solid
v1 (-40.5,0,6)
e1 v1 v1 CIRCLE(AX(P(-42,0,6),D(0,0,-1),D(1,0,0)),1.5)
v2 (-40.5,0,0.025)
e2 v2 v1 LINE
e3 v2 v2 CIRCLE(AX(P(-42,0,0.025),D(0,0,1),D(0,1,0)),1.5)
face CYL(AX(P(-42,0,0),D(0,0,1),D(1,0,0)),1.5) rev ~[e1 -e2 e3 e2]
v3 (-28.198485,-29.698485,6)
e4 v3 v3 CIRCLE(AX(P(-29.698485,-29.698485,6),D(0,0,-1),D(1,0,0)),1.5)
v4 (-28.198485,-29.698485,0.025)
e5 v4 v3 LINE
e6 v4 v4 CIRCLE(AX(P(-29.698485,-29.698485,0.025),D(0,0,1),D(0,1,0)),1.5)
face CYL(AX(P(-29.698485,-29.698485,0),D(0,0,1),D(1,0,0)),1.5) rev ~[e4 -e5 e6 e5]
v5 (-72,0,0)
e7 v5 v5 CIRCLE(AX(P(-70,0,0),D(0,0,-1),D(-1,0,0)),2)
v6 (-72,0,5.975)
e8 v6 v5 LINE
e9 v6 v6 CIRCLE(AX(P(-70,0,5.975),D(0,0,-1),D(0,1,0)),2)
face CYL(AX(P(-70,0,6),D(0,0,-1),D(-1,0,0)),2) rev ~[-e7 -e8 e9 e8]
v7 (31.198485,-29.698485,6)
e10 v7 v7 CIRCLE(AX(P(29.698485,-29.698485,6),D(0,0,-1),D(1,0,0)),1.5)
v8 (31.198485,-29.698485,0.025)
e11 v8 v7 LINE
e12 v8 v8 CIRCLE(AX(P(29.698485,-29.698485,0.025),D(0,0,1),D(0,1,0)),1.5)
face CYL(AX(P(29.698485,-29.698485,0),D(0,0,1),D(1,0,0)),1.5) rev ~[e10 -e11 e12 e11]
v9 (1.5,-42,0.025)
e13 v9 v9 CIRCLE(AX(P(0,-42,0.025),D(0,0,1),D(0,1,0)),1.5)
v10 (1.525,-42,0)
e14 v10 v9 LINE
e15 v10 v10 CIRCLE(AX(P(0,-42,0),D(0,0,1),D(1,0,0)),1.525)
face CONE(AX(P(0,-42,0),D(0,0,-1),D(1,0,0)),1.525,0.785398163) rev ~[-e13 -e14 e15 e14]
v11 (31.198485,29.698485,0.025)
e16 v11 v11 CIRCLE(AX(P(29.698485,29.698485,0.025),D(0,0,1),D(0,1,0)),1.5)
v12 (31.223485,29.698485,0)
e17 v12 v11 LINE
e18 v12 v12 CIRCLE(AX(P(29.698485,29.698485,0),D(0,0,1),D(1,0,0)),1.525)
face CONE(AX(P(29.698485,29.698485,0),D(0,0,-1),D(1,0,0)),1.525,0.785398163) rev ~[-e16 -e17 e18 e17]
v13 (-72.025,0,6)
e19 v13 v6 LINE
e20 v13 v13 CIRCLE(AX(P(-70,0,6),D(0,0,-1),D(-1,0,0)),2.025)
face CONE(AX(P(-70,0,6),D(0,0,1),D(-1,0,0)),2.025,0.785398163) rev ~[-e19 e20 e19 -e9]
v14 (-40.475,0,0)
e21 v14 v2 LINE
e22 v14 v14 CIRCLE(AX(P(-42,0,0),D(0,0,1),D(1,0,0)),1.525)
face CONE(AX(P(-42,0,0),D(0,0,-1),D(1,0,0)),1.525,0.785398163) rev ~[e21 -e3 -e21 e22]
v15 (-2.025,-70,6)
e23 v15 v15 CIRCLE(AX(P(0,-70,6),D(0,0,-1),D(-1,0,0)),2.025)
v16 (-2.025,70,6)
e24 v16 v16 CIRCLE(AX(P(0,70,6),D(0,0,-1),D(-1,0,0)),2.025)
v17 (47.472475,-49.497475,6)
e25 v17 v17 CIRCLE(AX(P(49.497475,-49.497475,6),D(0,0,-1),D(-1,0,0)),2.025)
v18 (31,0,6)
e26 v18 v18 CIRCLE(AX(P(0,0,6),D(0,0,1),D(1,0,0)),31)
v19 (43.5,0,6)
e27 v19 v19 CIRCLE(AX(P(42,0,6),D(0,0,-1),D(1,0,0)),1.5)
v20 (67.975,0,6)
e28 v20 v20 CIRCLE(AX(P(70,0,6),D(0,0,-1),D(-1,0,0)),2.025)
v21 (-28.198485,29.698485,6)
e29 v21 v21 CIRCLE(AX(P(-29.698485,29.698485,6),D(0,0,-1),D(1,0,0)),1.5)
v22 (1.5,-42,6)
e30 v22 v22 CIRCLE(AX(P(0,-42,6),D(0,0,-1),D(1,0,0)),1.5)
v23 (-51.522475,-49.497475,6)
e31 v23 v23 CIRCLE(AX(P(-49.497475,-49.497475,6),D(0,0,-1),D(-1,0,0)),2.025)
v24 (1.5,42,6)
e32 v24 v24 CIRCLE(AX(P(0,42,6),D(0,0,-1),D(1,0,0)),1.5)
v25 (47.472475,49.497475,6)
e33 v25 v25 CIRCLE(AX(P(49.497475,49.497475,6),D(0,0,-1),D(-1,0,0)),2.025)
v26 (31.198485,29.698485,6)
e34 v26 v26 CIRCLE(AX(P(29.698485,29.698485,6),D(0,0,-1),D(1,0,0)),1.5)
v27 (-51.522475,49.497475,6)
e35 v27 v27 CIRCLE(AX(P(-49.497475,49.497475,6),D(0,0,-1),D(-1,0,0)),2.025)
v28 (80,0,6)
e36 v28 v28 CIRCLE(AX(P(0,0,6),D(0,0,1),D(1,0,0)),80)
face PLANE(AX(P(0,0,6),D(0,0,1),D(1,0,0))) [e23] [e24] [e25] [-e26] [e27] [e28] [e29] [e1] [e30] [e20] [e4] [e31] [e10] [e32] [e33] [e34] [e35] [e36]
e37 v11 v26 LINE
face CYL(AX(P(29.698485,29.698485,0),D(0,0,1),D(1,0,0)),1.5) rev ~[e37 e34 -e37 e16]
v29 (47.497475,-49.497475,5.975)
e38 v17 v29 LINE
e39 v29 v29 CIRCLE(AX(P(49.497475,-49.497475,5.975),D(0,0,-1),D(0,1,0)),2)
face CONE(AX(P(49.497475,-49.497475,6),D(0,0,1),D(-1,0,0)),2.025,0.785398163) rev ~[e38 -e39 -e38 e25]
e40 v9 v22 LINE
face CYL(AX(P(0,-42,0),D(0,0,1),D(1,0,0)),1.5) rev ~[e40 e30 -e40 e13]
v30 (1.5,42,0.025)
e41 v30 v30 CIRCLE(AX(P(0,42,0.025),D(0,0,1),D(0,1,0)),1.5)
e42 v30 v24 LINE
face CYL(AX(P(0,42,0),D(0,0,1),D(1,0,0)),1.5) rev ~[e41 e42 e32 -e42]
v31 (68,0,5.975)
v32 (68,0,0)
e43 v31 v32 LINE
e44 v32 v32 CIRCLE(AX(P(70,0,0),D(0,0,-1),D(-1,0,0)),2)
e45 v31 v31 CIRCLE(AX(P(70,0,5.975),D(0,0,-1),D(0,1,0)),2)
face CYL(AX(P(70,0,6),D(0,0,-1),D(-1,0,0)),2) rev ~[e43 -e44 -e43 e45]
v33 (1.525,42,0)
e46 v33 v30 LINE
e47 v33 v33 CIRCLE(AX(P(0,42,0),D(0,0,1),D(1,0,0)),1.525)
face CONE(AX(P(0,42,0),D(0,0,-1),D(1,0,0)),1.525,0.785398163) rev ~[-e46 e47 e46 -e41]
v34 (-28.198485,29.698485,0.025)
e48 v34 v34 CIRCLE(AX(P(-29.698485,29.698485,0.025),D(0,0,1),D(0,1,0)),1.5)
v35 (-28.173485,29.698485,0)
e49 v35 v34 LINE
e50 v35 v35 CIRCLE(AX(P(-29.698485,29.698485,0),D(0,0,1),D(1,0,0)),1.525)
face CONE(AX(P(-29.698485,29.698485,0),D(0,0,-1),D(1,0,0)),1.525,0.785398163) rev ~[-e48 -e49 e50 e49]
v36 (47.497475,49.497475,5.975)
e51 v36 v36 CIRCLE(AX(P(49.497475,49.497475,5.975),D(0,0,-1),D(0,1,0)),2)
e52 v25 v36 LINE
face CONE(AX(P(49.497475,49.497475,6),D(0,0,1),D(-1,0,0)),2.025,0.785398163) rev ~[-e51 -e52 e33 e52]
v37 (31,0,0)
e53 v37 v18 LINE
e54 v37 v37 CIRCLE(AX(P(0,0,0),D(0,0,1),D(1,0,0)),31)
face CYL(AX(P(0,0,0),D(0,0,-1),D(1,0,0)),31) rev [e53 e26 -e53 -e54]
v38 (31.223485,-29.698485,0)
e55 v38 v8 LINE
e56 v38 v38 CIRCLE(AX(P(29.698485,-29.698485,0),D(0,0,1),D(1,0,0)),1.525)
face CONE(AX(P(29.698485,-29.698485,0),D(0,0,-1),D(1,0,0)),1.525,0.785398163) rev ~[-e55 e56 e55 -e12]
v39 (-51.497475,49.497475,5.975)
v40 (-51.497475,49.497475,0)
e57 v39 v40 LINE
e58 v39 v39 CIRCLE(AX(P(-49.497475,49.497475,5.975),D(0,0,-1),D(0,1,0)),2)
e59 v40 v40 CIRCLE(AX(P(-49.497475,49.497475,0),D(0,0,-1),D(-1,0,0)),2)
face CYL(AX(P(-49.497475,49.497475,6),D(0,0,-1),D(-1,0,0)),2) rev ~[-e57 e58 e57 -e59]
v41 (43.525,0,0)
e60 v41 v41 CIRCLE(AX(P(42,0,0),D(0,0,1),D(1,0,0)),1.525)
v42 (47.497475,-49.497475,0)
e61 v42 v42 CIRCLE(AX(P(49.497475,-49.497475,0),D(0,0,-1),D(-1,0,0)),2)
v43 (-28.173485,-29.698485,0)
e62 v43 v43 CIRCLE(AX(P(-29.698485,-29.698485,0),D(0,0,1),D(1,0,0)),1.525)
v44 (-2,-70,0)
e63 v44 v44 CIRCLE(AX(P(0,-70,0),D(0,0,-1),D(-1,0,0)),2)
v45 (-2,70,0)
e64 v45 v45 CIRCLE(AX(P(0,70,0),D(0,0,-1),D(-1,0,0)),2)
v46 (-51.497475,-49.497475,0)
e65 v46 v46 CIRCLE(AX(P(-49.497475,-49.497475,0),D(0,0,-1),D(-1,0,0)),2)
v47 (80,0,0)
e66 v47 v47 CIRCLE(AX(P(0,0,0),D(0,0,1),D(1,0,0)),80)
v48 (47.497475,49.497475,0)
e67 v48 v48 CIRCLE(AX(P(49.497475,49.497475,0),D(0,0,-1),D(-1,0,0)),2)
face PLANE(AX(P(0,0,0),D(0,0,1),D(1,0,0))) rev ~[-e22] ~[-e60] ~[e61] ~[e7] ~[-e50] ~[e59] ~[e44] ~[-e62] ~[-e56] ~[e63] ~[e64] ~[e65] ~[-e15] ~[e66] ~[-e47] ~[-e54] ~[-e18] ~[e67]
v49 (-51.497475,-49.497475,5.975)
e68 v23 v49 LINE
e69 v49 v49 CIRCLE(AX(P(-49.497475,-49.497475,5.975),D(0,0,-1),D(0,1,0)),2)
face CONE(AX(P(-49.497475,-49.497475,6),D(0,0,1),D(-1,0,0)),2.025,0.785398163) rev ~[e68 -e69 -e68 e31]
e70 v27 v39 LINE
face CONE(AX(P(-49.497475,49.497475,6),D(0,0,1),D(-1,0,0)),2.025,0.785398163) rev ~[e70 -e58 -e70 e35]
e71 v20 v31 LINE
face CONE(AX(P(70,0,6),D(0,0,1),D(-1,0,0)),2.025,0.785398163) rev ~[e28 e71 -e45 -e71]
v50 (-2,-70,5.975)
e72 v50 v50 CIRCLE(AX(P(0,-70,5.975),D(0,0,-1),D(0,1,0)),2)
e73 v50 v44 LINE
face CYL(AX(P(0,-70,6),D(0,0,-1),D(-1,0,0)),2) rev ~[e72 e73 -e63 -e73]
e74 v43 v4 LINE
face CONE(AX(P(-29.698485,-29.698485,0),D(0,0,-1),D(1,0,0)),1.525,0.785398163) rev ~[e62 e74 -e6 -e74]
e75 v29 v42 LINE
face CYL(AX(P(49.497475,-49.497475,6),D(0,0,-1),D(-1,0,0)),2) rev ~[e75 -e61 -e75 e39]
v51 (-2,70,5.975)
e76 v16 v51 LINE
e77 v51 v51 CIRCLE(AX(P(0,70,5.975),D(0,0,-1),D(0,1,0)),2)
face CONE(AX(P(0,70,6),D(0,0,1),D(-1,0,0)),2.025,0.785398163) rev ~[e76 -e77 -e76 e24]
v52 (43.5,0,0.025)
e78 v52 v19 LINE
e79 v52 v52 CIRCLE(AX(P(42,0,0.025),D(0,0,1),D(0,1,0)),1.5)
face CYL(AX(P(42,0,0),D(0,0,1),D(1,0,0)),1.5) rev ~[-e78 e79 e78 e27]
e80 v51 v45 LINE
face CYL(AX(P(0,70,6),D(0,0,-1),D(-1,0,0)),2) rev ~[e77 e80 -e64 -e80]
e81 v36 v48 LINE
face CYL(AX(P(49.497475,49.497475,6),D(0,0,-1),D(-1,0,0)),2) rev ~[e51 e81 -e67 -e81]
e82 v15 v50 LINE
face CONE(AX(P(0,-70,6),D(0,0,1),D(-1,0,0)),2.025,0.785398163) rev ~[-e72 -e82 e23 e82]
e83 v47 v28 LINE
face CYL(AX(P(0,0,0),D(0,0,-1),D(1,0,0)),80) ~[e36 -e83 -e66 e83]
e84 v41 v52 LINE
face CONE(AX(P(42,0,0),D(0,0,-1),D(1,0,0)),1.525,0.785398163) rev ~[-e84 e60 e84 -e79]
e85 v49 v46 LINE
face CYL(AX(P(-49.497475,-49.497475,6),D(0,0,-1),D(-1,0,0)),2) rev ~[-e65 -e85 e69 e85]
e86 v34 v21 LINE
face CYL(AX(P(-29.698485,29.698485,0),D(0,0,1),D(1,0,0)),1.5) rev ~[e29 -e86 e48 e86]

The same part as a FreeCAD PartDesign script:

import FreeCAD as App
import Part
import Sketcher
Q = App.Units.Quantity

doc = App.newDocument("Part")
body = doc.addObject("PartDesign::Body", "Body")

sketch1 = doc.addObject("Sketcher::SketchObject", "Sketch")
body.addObject(sketch1)
sketch1.AttachmentSupport = (doc.XY_Plane, [""])
sketch1.MapMode = "FlatFace"
sketch1.addGeometry(Part.Circle(App.Vector(0, 0, 0), App.Vector(0, 0, 1), 80), False)
sketch1.addGeometry(Part.Circle(App.Vector(0, 0, 0), App.Vector(0, 0, 1), 31), False)
sketch1.addConstraint(Sketcher.Constraint("Coincident", 0, 3, -1, 1))
sketch1.addConstraint(Sketcher.Constraint("Coincident", 1, 3, -1, 1))
sketch1.addConstraint(Sketcher.Constraint("Diameter", 0, Q("160 mm")))
sketch1.addConstraint(Sketcher.Constraint("Diameter", 1, Q("62 mm")))
pad1 = doc.addObject("PartDesign::Pad", "Pad")
body.addObject(pad1)
pad1.Profile = sketch1
pad1.Length = 6

sketch2 = doc.addObject("Sketcher::SketchObject", "Sketch001")
body.addObject(sketch2)
sketch2.AttachmentSupport = (doc.XY_Plane, [""])
sketch2.MapMode = "FlatFace"
sketch2.AttachmentOffset = App.Placement(App.Vector(0, 0, 6), App.Rotation())
sketch2.addGeometry(Part.Circle(App.Vector(0, 70, 0), App.Vector(0, 0, 1), 2), False)
sketch2.addGeometry(Part.Circle(App.Vector(-49.5, 49.5, 0), App.Vector(0, 0, 1), 2), False)
sketch2.addGeometry(Part.Circle(App.Vector(-70, 0, 0), App.Vector(0, 0, 1), 2), False)
sketch2.addGeometry(Part.Circle(App.Vector(-49.5, -49.5, 0), App.Vector(0, 0, 1), 2), False)
sketch2.addGeometry(Part.Circle(App.Vector(0, -70, 0), App.Vector(0, 0, 1), 2), False)
sketch2.addGeometry(Part.Circle(App.Vector(49.5, -49.5, 0), App.Vector(0, 0, 1), 2), False)
sketch2.addGeometry(Part.Circle(App.Vector(70, 0, 0), App.Vector(0, 0, 1), 2), False)
sketch2.addGeometry(Part.Circle(App.Vector(49.5, 49.5, 0), App.Vector(0, 0, 1), 2), False)
sketch2.addConstraint(Sketcher.Constraint("Equal", 0, 1))
sketch2.addConstraint(Sketcher.Constraint("Equal", 1, 2))
sketch2.addConstraint(Sketcher.Constraint("Equal", 2, 3))
sketch2.addConstraint(Sketcher.Constraint("Equal", 3, 4))
sketch2.addConstraint(Sketcher.Constraint("Equal", 4, 5))
sketch2.addConstraint(Sketcher.Constraint("Equal", 5, 6))
sketch2.addConstraint(Sketcher.Constraint("Equal", 6, 7))
sketch2.addConstraint(Sketcher.Constraint("Symmetric", 0, 3, 4, 3, -1, 1))
sketch2.addConstraint(Sketcher.Constraint("Symmetric", 1, 3, 5, 3, -1, 1))
sketch2.addConstraint(Sketcher.Constraint("Symmetric", 2, 3, 6, 3, -1, 1))
sketch2.addConstraint(Sketcher.Constraint("Symmetric", 3, 3, 7, 3, -1, 1))
sketch2.addConstraint(Sketcher.Constraint("Symmetric", 3, 3, 5, 3, -2))
sketch2.addConstraint(Sketcher.Constraint("PointOnObject", 0, 3, -2))
sketch2.addConstraint(Sketcher.Constraint("PointOnObject", 2, 3, -1))
sketch2.addConstraint(Sketcher.Constraint("Diameter", 0, Q("4 mm")))
sketch2.addConstraint(Sketcher.Constraint("DistanceY", -1, 1, 0, 3, Q("70 mm")))
sketch2.addConstraint(Sketcher.Constraint("DistanceX", 2, 3, -1, 1, Q("70 mm")))
sketch2.addConstraint(Sketcher.Constraint("DistanceY", 3, 3, 1, 3, Q("98.994949 mm")))
sketch2.addConstraint(Sketcher.Constraint("DistanceX", 3, 3, 5, 3, Q("98.994949 mm")))
doc.recompute()
hole = doc.addObject("PartDesign::Hole", "Hole")
body.addObject(hole)
hole.Profile = sketch2
hole.ThreadType = "None"
hole.Diameter = 4
hole.DepthType = "ThroughAll"
hole.HoleCutType = "Countersink"
hole.HoleCutDiameter = 4.05
hole.HoleCutCountersinkAngle = 90

sketch3 = doc.addObject("Sketcher::SketchObject", "Sketch002")
body.addObject(sketch3)
sketch3.AttachmentSupport = (doc.XY_Plane, [""])
sketch3.MapMode = "FlatFace"
sketch3.addGeometry(Part.Circle(App.Vector(29.7, -29.7, 0), App.Vector(0, 0, 1), 1.5), False)
sketch3.addGeometry(Part.Circle(App.Vector(42, 0, 0), App.Vector(0, 0, 1), 1.5), False)
sketch3.addGeometry(Part.Circle(App.Vector(29.7, 29.7, 0), App.Vector(0, 0, 1), 1.5), False)
sketch3.addGeometry(Part.Circle(App.Vector(0, 42, 0), App.Vector(0, 0, 1), 1.5), False)
sketch3.addGeometry(Part.Circle(App.Vector(-29.7, 29.7, 0), App.Vector(0, 0, 1), 1.5), False)
sketch3.addGeometry(Part.Circle(App.Vector(-42, 0, 0), App.Vector(0, 0, 1), 1.5), False)
sketch3.addGeometry(Part.Circle(App.Vector(-29.7, -29.7, 0), App.Vector(0, 0, 1), 1.5), False)
sketch3.addGeometry(Part.Circle(App.Vector(0, -42, 0), App.Vector(0, 0, 1), 1.5), False)
sketch3.addConstraint(Sketcher.Constraint("Equal", 0, 1))
sketch3.addConstraint(Sketcher.Constraint("Equal", 1, 2))
sketch3.addConstraint(Sketcher.Constraint("Equal", 2, 3))
sketch3.addConstraint(Sketcher.Constraint("Equal", 3, 4))
sketch3.addConstraint(Sketcher.Constraint("Equal", 4, 5))
sketch3.addConstraint(Sketcher.Constraint("Equal", 5, 6))
sketch3.addConstraint(Sketcher.Constraint("Equal", 6, 7))
sketch3.addConstraint(Sketcher.Constraint("Symmetric", 0, 3, 4, 3, -1, 1))
sketch3.addConstraint(Sketcher.Constraint("Symmetric", 1, 3, 5, 3, -1, 1))
sketch3.addConstraint(Sketcher.Constraint("Symmetric", 2, 3, 6, 3, -1, 1))
sketch3.addConstraint(Sketcher.Constraint("Symmetric", 3, 3, 7, 3, -1, 1))
sketch3.addConstraint(Sketcher.Constraint("Symmetric", 2, 3, 4, 3, -2))
sketch3.addConstraint(Sketcher.Constraint("PointOnObject", 1, 3, -1))
sketch3.addConstraint(Sketcher.Constraint("PointOnObject", 3, 3, -2))
sketch3.addConstraint(Sketcher.Constraint("Diameter", 0, Q("3 mm")))
sketch3.addConstraint(Sketcher.Constraint("DistanceX", -1, 1, 1, 3, Q("42 mm")))
sketch3.addConstraint(Sketcher.Constraint("DistanceY", -1, 1, 3, 3, Q("42 mm")))
sketch3.addConstraint(Sketcher.Constraint("DistanceY", 0, 3, 2, 3, Q("59.39697 mm")))
sketch3.addConstraint(Sketcher.Constraint("DistanceX", 4, 3, 2, 3, Q("59.39697 mm")))
doc.recompute()
hole2 = doc.addObject("PartDesign::Hole", "Hole001")
body.addObject(hole2)
hole2.Profile = sketch3
hole2.ThreadType = "None"
hole2.Diameter = 3
hole2.DepthType = "Dimension"
hole2.Depth = 6
hole2.DrillPoint = "Angled"
hole2.DrillPointAngle = 118
hole2.HoleCutType = "Countersink"
hole2.HoleCutDiameter = 3.05
hole2.HoleCutCountersinkAngle = 90
hole2.Reversed = True

doc.recompute()
